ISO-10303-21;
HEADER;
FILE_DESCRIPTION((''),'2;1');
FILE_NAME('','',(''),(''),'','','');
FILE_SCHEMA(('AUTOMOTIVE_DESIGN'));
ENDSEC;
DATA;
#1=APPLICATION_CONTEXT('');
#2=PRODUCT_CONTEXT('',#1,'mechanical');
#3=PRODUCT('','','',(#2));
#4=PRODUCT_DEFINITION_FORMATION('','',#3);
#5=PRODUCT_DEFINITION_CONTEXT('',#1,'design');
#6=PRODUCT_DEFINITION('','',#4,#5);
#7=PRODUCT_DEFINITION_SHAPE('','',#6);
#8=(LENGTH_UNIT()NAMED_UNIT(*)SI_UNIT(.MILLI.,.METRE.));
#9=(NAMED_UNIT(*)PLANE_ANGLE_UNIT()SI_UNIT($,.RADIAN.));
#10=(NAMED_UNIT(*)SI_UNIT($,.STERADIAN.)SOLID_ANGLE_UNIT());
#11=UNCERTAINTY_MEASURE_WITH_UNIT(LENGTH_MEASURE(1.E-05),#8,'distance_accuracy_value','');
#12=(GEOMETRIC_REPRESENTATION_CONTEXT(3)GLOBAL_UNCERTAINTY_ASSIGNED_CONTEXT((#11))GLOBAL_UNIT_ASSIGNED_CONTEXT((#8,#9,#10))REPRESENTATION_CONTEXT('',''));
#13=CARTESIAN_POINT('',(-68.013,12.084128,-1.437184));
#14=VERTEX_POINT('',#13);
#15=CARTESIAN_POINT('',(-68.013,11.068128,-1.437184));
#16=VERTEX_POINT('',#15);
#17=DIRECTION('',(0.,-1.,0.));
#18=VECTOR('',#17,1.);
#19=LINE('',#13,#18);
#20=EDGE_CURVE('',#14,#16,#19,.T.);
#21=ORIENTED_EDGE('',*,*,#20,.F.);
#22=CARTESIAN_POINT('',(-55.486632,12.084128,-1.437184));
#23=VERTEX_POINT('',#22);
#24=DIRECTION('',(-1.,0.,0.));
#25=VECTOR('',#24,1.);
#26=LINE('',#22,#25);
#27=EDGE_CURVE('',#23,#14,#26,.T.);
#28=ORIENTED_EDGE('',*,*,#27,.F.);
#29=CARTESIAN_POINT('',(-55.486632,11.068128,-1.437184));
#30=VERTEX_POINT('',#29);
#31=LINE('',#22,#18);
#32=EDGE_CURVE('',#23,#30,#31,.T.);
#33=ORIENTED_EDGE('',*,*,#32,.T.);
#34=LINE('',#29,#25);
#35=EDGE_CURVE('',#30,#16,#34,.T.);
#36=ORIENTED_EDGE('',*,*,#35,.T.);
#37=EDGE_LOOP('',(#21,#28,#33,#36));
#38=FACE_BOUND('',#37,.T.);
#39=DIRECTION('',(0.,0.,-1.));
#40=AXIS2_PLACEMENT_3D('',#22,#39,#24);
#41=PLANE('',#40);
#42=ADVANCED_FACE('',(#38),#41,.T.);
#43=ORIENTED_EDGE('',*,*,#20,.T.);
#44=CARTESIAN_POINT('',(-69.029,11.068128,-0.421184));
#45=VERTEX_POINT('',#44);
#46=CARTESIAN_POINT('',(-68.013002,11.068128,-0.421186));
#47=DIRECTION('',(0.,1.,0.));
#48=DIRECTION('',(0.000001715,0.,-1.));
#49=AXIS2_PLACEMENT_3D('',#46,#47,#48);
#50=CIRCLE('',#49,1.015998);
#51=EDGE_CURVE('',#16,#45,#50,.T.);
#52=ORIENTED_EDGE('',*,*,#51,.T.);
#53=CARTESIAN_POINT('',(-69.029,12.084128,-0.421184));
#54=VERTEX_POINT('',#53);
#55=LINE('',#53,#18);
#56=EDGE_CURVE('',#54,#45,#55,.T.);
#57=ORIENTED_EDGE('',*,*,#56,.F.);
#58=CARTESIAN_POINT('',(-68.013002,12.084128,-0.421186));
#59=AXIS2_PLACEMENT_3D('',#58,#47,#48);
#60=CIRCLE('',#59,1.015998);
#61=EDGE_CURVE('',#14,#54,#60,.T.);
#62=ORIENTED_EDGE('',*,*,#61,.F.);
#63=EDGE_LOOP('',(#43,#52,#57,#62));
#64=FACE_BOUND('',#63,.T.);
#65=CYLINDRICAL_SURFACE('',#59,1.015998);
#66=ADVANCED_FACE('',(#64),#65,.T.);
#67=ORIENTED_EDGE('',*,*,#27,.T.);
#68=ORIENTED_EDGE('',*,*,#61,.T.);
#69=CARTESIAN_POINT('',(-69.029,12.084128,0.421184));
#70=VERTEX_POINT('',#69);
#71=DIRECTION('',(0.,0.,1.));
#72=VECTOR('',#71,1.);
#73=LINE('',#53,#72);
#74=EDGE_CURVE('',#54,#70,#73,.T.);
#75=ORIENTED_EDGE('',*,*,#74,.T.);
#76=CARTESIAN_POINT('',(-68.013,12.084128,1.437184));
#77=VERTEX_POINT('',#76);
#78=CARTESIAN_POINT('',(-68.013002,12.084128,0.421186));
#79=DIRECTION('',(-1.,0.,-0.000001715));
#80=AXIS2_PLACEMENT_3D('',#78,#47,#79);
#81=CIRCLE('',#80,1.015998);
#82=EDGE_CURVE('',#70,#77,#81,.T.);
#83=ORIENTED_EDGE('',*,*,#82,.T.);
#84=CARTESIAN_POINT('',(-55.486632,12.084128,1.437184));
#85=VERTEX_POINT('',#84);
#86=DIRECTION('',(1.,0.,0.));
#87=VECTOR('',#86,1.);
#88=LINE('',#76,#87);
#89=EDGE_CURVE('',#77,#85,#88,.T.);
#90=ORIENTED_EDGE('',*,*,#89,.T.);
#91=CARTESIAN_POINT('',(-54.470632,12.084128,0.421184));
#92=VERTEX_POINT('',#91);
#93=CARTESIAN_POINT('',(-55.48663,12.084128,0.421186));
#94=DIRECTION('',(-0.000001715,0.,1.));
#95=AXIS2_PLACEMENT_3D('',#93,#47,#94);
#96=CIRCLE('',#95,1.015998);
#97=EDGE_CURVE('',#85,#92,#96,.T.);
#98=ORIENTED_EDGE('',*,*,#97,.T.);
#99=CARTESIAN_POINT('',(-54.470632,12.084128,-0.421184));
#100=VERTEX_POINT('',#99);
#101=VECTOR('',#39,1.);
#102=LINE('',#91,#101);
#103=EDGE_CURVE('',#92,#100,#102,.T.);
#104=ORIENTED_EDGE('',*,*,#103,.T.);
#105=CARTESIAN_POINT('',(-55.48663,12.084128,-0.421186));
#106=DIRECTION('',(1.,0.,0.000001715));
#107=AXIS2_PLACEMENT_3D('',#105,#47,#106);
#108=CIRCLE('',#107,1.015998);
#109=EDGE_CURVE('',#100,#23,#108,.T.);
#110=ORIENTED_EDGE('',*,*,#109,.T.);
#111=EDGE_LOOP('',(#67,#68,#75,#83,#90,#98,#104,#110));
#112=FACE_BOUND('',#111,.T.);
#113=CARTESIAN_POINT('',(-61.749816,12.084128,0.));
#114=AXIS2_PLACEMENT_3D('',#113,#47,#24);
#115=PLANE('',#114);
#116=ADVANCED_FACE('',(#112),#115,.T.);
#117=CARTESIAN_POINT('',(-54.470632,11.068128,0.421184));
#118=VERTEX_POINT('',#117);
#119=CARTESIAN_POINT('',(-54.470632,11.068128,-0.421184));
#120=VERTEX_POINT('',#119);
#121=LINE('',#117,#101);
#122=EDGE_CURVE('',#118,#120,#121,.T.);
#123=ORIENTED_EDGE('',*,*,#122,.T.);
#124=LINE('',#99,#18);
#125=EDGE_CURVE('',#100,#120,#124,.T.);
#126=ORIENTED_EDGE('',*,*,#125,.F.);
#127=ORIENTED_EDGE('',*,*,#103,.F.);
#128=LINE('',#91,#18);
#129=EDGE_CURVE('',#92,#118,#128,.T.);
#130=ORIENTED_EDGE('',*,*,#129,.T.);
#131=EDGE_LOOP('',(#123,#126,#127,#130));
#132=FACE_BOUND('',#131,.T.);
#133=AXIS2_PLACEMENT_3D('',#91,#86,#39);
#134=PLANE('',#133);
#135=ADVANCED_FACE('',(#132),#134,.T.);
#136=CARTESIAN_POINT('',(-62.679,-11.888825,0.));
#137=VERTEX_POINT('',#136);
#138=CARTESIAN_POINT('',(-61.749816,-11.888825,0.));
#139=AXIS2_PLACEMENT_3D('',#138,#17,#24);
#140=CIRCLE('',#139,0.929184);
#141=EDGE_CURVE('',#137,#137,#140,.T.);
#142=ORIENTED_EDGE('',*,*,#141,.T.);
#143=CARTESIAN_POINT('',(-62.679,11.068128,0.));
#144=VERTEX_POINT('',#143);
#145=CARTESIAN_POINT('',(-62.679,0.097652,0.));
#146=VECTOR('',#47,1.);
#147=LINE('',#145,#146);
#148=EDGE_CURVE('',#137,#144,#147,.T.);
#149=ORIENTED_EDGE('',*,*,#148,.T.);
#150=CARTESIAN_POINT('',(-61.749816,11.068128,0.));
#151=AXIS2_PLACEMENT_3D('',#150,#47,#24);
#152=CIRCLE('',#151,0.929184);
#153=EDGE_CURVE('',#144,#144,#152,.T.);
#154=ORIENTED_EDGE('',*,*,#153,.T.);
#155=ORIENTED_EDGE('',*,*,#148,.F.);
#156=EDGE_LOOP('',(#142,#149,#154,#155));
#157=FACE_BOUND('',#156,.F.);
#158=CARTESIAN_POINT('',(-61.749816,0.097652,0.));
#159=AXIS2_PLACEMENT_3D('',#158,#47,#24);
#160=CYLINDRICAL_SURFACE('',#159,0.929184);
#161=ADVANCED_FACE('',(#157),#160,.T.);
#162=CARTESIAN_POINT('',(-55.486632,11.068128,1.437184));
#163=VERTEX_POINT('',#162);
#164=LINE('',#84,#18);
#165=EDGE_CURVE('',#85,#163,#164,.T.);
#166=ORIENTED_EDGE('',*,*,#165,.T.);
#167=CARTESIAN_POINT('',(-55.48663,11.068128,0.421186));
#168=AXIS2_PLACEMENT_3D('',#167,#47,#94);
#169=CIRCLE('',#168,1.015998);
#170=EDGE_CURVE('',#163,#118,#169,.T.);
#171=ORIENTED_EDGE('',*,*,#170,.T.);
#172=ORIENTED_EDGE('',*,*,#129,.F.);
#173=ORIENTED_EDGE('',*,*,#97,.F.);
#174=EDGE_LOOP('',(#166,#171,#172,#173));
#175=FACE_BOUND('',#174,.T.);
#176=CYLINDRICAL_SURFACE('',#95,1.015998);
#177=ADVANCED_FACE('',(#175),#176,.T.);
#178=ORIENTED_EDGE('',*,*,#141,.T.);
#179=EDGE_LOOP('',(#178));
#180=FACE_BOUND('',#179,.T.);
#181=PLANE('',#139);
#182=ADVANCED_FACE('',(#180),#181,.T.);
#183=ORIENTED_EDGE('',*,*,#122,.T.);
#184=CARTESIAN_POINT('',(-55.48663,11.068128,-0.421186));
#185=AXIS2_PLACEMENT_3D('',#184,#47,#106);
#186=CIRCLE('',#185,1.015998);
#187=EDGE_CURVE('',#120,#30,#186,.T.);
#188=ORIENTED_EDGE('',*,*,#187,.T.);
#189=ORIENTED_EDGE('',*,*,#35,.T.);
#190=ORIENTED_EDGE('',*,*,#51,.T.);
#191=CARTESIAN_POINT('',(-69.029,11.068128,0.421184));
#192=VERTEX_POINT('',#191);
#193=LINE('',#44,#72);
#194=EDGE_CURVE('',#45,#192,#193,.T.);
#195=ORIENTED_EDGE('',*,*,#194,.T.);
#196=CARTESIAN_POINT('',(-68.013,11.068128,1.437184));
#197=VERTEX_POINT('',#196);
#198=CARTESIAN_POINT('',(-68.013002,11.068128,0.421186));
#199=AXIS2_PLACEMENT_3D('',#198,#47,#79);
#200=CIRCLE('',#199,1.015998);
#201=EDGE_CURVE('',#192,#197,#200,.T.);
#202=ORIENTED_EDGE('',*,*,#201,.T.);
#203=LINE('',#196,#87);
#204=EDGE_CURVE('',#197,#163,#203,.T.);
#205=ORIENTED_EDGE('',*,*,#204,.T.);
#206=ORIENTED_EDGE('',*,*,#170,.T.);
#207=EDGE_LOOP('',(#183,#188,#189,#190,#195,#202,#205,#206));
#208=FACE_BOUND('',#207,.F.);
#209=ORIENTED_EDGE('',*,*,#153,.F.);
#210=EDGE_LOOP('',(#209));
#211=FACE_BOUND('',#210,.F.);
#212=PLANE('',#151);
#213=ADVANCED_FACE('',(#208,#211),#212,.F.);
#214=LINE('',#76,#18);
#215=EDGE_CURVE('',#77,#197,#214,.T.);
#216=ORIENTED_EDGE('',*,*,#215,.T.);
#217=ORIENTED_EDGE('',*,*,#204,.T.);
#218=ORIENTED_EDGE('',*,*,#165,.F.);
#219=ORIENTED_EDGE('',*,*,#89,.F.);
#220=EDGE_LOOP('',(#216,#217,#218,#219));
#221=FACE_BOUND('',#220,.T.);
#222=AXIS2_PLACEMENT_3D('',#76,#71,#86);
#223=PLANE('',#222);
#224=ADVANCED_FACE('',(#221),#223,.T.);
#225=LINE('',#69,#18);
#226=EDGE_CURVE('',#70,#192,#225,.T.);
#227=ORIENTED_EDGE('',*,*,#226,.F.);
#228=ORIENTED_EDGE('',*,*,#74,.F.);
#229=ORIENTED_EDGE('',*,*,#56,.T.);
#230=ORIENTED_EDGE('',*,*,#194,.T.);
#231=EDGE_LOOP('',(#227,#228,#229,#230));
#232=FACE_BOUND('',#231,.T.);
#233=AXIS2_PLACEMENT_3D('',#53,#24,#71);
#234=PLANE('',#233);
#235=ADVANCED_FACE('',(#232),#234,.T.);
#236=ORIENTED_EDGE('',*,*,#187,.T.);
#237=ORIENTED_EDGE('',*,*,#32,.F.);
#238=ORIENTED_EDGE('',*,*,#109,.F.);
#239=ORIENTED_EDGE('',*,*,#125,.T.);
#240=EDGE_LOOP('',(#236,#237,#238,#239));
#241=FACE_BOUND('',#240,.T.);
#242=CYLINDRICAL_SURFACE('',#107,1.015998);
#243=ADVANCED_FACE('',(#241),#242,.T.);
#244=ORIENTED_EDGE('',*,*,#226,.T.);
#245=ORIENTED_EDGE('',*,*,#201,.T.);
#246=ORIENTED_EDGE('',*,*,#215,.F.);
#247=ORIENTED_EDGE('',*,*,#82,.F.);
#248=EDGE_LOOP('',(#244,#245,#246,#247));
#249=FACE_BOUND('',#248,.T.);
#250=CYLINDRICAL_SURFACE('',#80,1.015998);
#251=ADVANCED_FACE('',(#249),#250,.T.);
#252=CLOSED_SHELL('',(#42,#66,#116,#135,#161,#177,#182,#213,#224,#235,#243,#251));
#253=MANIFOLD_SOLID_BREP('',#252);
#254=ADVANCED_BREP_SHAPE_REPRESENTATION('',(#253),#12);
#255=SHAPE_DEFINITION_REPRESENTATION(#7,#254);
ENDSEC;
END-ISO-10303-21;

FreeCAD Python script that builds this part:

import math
import FreeCAD as App
import Part
import Sketcher

V = App.Vector
Q = App.Units.Quantity

doc = App.newDocument("Part")
body = doc.addObject("PartDesign::Body", "Body")

sketch1 = body.newObject("Sketcher::SketchObject", "Sketch")
sketch1.AttachmentSupport = (doc.getObject("XY_Plane"), [""])
sketch1.MapMode = "FlatFace"
sketch1.addGeometry([
    Part.LineSegment(V(-62.7, 12.1, 0), V(-62.7, -11.9, 0)),
    Part.LineSegment(V(-62.7, -11.9, 0), V(-61.7, -11.9, 0)),
    Part.LineSegment(V(-61.7, -11.9, 0), V(-61.7, 12.1, 0)),
    Part.LineSegment(V(-61.7, 12.1, 0), V(-62.7, 12.1, 0)),
], False)
sketch1.addGeometry(Part.LineSegment(V(-61.7, 12.1, 0), V(-61.7, -11.9, 0)), True)
sketch1.addConstraint([
    Sketcher.Constraint("Coincident", 0, 2, 1, 1),
    Sketcher.Constraint("Coincident", 1, 2, 2, 1),
    Sketcher.Constraint("Coincident", 2, 2, 3, 1),
    Sketcher.Constraint("Coincident", 3, 2, 0, 1),
    Sketcher.Constraint("Vertical", 0),
    Sketcher.Constraint("Horizontal", 1),
    Sketcher.Constraint("Vertical", 2),
    Sketcher.Constraint("Horizontal", 3),
    Sketcher.Constraint("Vertical", 4),
    Sketcher.Constraint("Coincident", 4, 1, 2, 2),
    Sketcher.Constraint("Horizontal", 0, 2, 4, 2),
    Sketcher.Constraint("DistanceX", 0, 2, -1, 1, 62.679),
    Sketcher.Constraint("DistanceX", 1, 1, 1, 2, 0.929184),
    Sketcher.Constraint("DistanceY", 0, 2, 0, 1, 23.972953),
    Sketcher.Constraint("DistanceY", -1, 1, 2, 2, 12.084129),
])
revolution = body.newObject("PartDesign::Revolution", "Revolution")
revolution.Profile = sketch1
revolution.ReferenceAxis = (sketch1, ["Axis0"])
revolution.Angle = 360

sketch2 = body.newObject("Sketcher::SketchObject", "Sketch001")
sketch2.AttachmentSupport = (doc.getObject("XZ_Plane"), [""])
sketch2.MapMode = "FlatFace"
sketch2.AttachmentOffset = App.Placement(V(0, 0, -12.084128), App.Rotation())
sketch2.addGeometry([
    Part.LineSegment(V(-68, 1.4, 0), V(-55.5, 1.4, 0)),
    Part.ArcOfCircle(Part.Circle(V(-55.5, 0.4, 0), V(0, 0, 1), 1), math.radians(0), math.radians(90)),
    Part.LineSegment(V(-54.5, 0.4, 0), V(-54.5, -0.4, 0)),
    Part.ArcOfCircle(Part.Circle(V(-55.5, -0.4, 0), V(0, 0, 1), 1), math.radians(-90), math.radians(0)),
    Part.LineSegment(V(-55.5, -1.4, 0), V(-68, -1.4, 0)),
    Part.ArcOfCircle(Part.Circle(V(-68, -0.4, 0), V(0, 0, 1), 1), math.radians(180), math.radians(270)),
    Part.LineSegment(V(-69, -0.4, 0), V(-69, 0.4, 0)),
    Part.ArcOfCircle(Part.Circle(V(-68, 0.4, 0), V(0, 0, 1), 1), math.radians(90), math.radians(180)),
], False)
sketch2.addConstraint([
    Sketcher.Constraint("Tangent", 0, 2, 1, 2),
    Sketcher.Constraint("Tangent", 1, 1, 2, 1),
    Sketcher.Constraint("Tangent", 2, 2, 3, 2),
    Sketcher.Constraint("Tangent", 3, 1, 4, 1),
    Sketcher.Constraint("Tangent", 4, 2, 5, 2),
    Sketcher.Constraint("Tangent", 5, 1, 6, 1),
    Sketcher.Constraint("Tangent", 6, 2, 7, 2),
    Sketcher.Constraint("Tangent", 7, 1, 0, 1),
    Sketcher.Constraint("Horizontal", 0),
    Sketcher.Constraint("Vertical", 2),
    Sketcher.Constraint("Horizontal", 4),
    Sketcher.Constraint("Vertical", 6),
    Sketcher.Constraint("Equal", 1, 3),
    Sketcher.Constraint("Equal", 3, 5),
    Sketcher.Constraint("Equal", 5, 7),
    Sketcher.Constraint("Radius", 1, Q("0.0399999 in")),
    Sketcher.Constraint("DistanceX", 0, 1, 0, 2, 12.526368),
    Sketcher.Constraint("DistanceY", 2, 2, 2, 1, 0.842368),
    Sketcher.Constraint("DistanceX", 5, 3, -1, 1, 68.013002),
    Sketcher.Constraint("DistanceY", -1, 1, 1, 3, 0.421186),
])
pad1 = body.newObject("PartDesign::Pad", "Pad")
pad1.Profile = sketch2
pad1.Length = Q("0.04 in")

doc.recompute()
